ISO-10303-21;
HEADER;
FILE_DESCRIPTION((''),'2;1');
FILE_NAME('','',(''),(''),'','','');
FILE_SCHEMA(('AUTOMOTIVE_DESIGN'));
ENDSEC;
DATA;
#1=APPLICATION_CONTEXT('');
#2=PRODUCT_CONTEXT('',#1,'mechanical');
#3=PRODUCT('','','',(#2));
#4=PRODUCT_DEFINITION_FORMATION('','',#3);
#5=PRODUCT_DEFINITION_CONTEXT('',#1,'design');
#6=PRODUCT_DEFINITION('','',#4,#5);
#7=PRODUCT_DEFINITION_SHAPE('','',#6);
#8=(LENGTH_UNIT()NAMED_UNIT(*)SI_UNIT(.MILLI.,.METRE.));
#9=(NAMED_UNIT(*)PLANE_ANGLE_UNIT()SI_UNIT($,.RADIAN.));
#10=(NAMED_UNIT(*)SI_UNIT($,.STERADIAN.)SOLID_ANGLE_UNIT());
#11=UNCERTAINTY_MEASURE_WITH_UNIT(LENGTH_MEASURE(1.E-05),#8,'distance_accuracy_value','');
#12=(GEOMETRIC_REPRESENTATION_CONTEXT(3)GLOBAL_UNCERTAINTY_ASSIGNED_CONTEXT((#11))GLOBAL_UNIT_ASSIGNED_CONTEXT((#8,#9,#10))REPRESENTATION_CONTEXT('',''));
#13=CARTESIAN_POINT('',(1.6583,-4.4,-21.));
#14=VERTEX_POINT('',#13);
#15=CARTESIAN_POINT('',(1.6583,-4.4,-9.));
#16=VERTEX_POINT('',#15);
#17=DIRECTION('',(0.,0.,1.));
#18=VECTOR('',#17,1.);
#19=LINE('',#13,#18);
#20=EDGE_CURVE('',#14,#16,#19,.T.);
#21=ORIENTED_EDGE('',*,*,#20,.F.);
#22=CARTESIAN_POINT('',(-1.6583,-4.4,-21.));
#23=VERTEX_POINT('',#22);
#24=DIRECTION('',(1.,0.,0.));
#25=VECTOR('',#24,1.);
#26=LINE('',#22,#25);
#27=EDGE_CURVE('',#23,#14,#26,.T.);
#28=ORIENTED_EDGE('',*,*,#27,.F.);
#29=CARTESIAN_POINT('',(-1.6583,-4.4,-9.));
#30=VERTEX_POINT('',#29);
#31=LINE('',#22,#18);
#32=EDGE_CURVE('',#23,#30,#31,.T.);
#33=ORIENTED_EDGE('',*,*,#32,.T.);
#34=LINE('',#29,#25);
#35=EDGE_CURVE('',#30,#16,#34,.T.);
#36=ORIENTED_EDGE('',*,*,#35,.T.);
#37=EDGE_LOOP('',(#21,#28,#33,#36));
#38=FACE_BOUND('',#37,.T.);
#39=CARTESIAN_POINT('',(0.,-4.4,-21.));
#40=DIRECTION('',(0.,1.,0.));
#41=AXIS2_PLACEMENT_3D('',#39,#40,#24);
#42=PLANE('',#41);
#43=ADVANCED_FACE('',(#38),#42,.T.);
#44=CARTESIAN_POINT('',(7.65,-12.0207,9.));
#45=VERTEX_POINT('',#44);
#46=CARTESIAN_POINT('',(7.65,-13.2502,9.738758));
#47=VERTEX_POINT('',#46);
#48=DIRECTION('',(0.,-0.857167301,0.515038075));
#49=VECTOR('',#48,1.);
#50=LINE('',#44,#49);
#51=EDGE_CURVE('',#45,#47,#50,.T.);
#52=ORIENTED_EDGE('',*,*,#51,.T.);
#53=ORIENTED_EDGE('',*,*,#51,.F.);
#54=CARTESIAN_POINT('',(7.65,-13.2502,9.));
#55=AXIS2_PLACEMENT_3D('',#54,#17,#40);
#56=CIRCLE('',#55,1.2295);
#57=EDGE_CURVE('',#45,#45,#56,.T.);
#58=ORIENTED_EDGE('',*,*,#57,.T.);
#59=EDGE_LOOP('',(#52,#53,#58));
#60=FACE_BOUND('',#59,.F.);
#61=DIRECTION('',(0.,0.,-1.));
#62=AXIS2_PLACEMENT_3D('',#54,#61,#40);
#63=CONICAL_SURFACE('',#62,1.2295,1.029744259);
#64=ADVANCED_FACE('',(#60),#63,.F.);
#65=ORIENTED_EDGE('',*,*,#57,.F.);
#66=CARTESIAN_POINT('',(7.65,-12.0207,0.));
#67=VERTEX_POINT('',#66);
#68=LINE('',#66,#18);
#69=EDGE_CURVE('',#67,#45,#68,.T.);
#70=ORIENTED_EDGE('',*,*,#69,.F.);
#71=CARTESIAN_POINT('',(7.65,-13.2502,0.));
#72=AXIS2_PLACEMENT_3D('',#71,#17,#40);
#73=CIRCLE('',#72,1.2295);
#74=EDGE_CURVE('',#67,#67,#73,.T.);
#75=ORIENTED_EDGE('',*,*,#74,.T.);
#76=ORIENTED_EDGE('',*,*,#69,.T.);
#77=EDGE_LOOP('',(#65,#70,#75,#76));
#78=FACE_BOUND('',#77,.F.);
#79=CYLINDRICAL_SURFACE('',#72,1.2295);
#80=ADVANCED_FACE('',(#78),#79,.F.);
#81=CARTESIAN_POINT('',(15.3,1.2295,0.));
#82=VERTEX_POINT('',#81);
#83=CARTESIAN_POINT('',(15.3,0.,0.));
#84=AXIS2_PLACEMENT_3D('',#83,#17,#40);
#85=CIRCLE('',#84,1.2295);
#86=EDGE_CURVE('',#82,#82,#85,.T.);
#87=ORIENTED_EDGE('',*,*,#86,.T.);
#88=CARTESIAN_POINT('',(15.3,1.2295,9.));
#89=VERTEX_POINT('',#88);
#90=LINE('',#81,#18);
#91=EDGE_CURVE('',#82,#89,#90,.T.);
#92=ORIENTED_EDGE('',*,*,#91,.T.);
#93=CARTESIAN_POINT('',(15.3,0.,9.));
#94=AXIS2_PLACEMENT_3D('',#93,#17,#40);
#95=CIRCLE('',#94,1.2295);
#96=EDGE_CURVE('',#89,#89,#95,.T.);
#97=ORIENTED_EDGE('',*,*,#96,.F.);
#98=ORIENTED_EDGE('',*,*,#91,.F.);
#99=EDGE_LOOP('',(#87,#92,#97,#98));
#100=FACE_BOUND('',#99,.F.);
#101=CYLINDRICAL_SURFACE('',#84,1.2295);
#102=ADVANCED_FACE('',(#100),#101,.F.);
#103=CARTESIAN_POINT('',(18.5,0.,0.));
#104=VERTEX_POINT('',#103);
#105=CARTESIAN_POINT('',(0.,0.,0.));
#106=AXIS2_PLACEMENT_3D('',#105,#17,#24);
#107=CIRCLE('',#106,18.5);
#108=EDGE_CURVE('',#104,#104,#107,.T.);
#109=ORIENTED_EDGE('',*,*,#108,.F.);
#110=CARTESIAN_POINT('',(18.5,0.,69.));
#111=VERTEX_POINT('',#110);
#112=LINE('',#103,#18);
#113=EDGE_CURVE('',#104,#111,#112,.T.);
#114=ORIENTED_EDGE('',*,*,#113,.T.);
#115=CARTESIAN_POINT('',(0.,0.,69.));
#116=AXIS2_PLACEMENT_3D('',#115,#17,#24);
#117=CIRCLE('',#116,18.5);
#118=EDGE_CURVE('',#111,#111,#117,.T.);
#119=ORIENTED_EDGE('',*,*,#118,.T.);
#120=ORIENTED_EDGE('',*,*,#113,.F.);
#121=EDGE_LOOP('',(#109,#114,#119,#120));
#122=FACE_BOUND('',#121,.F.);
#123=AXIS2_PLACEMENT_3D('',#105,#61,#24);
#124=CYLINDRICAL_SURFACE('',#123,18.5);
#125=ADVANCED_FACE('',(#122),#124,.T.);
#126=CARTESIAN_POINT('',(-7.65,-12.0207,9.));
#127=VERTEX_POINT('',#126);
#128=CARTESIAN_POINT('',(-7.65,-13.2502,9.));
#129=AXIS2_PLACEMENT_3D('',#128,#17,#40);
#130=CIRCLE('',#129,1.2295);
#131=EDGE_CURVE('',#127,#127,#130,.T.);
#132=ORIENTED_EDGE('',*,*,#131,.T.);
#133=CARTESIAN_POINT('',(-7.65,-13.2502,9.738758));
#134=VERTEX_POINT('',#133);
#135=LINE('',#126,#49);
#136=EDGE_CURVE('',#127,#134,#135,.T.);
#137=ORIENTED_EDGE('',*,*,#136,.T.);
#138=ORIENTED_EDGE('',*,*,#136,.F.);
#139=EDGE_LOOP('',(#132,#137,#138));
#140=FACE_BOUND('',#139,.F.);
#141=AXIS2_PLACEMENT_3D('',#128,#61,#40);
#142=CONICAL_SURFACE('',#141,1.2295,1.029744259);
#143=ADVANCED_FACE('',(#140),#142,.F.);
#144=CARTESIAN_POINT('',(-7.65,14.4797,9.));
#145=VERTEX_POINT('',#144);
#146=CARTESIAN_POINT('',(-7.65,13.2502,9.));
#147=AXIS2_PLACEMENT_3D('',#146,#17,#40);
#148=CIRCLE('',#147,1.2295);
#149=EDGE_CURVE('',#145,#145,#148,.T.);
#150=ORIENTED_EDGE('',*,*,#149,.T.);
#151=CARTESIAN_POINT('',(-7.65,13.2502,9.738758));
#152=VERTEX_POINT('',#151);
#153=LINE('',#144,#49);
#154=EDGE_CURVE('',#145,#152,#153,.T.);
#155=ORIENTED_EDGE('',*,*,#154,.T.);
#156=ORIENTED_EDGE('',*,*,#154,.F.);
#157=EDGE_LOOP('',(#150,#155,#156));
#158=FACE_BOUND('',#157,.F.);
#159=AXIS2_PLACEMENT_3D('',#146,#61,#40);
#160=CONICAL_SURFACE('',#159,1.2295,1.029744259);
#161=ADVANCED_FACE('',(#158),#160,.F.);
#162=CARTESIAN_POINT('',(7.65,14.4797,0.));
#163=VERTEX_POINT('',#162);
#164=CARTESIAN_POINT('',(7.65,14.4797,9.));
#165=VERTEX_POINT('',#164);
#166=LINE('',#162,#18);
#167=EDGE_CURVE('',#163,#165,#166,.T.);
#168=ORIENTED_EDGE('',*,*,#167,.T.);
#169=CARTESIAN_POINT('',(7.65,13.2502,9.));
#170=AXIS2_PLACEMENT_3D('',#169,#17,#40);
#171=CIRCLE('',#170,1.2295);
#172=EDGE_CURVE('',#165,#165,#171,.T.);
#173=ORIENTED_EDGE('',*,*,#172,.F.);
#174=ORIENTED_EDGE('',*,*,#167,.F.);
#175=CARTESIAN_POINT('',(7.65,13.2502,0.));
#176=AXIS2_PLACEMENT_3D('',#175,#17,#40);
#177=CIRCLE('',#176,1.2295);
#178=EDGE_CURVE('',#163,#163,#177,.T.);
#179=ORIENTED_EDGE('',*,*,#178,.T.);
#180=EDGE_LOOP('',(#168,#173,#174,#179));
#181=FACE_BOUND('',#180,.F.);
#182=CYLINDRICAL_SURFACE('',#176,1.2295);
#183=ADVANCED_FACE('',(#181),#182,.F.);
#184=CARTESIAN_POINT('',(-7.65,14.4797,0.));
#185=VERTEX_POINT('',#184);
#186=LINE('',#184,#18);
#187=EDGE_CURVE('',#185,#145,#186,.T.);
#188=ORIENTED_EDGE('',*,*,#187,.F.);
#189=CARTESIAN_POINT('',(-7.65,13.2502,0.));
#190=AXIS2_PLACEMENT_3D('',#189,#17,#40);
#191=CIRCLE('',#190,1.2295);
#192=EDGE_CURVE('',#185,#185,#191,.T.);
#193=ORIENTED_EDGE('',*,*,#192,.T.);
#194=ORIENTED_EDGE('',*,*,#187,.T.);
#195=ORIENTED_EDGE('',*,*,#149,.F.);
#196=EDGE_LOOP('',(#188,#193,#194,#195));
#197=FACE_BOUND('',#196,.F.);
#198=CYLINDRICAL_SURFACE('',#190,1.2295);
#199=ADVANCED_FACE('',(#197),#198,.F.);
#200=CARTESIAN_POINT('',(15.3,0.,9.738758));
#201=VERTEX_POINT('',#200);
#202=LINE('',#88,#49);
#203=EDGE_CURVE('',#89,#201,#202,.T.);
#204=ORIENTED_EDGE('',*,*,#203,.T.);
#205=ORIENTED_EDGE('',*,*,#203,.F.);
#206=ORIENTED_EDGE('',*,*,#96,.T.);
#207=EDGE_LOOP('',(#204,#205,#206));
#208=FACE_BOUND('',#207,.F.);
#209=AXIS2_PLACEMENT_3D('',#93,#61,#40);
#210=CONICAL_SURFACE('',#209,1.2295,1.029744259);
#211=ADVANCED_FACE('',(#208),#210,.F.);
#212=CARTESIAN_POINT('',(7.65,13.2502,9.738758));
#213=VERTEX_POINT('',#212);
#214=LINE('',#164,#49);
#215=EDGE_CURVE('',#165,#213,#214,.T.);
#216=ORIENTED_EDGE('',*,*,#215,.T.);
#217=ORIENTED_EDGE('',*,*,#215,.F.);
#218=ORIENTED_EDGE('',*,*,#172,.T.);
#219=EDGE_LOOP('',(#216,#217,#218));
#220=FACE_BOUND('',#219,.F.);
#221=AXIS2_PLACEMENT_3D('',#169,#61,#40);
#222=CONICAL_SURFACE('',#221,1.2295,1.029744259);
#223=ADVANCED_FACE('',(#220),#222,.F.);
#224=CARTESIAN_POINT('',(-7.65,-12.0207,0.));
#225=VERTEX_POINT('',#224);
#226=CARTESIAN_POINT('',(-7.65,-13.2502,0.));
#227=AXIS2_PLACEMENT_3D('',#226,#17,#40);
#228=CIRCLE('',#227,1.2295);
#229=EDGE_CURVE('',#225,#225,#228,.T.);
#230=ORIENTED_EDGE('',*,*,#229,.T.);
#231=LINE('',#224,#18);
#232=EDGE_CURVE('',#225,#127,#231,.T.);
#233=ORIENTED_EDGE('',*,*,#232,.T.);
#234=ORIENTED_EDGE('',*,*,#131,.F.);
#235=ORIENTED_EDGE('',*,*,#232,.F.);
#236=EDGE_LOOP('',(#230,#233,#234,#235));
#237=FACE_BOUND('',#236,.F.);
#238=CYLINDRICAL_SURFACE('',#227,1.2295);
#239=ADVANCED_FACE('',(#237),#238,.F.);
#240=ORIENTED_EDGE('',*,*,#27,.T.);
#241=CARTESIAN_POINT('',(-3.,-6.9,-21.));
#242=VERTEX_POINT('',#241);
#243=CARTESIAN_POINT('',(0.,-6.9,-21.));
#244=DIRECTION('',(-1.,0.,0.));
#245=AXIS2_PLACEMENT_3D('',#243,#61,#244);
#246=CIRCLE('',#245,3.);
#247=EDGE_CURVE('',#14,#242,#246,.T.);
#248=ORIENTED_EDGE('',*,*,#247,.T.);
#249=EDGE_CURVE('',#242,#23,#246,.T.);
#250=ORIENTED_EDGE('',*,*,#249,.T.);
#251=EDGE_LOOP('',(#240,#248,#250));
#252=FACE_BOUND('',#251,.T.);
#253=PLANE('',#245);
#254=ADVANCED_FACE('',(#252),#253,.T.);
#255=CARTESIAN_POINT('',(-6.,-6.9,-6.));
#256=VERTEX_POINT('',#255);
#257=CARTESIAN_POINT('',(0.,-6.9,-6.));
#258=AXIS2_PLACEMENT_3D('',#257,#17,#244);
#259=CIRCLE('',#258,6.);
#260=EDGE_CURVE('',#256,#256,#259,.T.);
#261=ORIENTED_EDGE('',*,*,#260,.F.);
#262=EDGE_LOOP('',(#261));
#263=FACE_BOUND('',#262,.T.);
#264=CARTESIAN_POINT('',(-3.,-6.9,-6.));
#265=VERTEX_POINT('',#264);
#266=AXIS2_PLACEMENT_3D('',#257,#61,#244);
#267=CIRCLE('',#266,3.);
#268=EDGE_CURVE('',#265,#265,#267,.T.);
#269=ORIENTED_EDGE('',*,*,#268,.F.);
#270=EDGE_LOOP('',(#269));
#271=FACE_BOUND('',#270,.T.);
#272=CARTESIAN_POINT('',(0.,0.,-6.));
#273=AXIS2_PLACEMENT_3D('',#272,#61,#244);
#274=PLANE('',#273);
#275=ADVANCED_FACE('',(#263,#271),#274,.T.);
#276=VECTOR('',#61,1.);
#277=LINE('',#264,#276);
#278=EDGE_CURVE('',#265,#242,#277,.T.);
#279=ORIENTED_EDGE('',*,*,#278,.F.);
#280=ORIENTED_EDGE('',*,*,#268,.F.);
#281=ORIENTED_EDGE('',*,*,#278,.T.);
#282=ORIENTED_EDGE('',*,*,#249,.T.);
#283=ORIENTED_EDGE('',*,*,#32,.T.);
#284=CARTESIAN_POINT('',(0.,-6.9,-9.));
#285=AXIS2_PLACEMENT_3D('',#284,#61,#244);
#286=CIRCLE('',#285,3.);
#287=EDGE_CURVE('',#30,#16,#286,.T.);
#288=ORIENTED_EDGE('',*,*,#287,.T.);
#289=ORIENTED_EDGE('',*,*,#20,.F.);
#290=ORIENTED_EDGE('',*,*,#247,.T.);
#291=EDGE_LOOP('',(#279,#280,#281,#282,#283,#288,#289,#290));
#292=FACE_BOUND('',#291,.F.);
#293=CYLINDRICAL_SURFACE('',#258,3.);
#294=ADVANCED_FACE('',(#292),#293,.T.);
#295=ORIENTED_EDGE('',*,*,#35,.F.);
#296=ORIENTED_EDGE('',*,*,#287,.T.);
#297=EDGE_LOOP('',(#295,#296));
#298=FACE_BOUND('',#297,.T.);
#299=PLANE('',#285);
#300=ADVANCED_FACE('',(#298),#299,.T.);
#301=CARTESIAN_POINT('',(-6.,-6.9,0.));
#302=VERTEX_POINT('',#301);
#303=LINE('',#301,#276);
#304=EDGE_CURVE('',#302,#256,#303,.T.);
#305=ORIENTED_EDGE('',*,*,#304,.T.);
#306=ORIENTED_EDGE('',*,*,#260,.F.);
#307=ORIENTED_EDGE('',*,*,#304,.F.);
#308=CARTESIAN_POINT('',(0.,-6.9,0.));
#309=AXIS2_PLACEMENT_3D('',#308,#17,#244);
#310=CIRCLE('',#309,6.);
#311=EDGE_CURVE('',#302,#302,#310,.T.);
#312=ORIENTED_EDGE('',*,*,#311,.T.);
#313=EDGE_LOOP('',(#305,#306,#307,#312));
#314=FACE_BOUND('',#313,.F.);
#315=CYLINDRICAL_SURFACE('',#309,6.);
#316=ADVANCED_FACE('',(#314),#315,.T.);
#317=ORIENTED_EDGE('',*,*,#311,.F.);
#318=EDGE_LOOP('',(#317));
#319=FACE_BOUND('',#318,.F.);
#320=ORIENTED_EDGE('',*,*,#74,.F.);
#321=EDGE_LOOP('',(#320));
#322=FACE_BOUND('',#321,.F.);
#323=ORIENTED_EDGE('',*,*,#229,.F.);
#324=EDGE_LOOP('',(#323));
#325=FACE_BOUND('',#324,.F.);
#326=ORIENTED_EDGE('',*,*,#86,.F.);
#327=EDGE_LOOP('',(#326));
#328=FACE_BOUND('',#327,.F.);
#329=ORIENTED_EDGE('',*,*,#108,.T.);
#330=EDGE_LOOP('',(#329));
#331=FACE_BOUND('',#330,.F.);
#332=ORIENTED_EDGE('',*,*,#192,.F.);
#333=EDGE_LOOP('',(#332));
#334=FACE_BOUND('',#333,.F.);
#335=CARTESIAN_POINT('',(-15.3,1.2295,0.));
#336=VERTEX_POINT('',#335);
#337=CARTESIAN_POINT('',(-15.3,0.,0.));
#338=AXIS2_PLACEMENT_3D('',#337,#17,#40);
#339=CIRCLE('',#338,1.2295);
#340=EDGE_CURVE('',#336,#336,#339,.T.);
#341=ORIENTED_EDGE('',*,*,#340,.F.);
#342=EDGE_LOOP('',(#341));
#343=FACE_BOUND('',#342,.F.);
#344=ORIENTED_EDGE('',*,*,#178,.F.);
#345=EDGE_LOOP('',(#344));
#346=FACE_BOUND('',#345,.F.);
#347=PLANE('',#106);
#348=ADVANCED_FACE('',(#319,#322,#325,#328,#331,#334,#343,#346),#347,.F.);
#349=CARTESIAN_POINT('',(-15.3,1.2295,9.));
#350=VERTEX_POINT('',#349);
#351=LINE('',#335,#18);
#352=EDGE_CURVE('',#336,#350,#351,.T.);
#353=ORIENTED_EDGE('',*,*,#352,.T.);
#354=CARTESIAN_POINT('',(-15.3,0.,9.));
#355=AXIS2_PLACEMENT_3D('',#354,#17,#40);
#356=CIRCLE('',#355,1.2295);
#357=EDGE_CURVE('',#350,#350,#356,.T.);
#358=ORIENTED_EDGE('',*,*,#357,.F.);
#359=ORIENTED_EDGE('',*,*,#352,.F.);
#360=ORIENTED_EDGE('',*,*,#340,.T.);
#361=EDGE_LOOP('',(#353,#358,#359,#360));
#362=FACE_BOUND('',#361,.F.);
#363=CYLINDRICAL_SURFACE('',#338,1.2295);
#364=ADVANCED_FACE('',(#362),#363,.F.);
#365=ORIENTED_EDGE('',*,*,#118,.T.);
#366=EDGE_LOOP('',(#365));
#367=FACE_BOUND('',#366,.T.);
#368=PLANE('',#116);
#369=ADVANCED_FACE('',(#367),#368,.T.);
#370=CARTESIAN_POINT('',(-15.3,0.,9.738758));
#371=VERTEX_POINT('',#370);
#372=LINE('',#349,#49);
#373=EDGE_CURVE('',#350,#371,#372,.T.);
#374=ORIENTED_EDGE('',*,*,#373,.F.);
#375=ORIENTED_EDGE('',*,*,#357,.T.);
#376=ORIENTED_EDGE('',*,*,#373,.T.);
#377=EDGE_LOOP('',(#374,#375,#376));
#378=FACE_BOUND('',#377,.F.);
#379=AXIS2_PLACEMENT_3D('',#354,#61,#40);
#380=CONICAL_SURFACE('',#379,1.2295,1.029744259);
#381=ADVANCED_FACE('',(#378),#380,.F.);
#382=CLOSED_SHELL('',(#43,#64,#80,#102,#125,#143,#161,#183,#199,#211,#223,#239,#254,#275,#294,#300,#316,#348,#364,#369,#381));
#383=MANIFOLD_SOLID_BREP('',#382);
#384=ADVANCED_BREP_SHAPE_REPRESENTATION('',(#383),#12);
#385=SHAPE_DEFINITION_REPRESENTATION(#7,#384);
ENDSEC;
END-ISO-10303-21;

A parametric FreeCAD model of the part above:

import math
import FreeCAD as App
import Part
import Sketcher
from FreeCAD import Vector
Q = App.Units.Quantity

doc = App.newDocument("Part")
body = doc.addObject("PartDesign::Body", "Body")

# Sketch on XY plane
sketch1 = body.newObject("Sketcher::SketchObject", "Sketch")
sketch1.AttachmentSupport = (doc.getObject("XY_Plane"), [""])
sketch1.MapMode = "FlatFace"
sketch1.addGeometry(Part.Circle(Vector(0, 0, 0), Vector(0, 0, 1), 18), False)
sketch1.addConstraint([
    Sketcher.Constraint("Coincident", 0, 3, -1, 1),
    Sketcher.Constraint("Diameter", 0, Q("37 mm")),
])
pad1 = body.newObject("PartDesign::Pad", "Pad")
pad1.Profile = sketch1
pad1.Length = 69

# Sketch on XY plane
sketch2 = body.newObject("Sketcher::SketchObject", "Sketch001")
sketch2.AttachmentSupport = (doc.getObject("XY_Plane"), [""])
sketch2.MapMode = "FlatFace"
sketch2.addGeometry([
    Part.Circle(Vector(7.7, 13.3, 0), Vector(0, 0, 1), 1.2),  # 0
    Part.Circle(Vector(-7.7, 13.3, 0), Vector(0, 0, 1), 1.2),  # 1
    Part.Circle(Vector(15.3, 0, 0), Vector(0, 0, 1), 1.2),  # 2
    Part.Circle(Vector(7.7, -13.3, 0), Vector(0, 0, 1), 1.2),  # 3
    Part.Circle(Vector(-7.7, -13.3, 0), Vector(0, 0, 1), 1.2),  # 4
    Part.Circle(Vector(-15.3, 0, 0), Vector(0, 0, 1), 1.2),  # 5
], False)
sketch2.addConstraint([
    Sketcher.Constraint("Equal", 0, 1),
    Sketcher.Constraint("Equal", 1, 2),
    Sketcher.Constraint("Equal", 2, 3),
    Sketcher.Constraint("Equal", 3, 4),
    Sketcher.Constraint("Equal", 4, 5),
    Sketcher.Constraint("Symmetric", 1, 3, 3, 3, -1, 1),
    Sketcher.Constraint("Symmetric", 0, 3, 4, 3, -1, 1),
    Sketcher.Constraint("Symmetric", 2, 3, 5, 3, -1, 1),
    Sketcher.Constraint("Symmetric", 0, 3, 1, 3, -2),
    Sketcher.Constraint("PointOnObject", 2, 3, -1),
    Sketcher.Constraint("Diameter", 0, Q("2.459 mm")),
    Sketcher.Constraint("DistanceX", -1, 1, 2, 3, Q("15.3 mm")),
    Sketcher.Constraint("DistanceX", 1, 3, 0, 3, Q("15.3 mm")),
    Sketcher.Constraint("DistanceY", -1, 1, 0, 3, Q("13.2502 mm")),
])
doc.recompute()
hole = body.newObject("PartDesign::Hole", "Hole")
hole.Profile = sketch2
hole.ThreadType = "None"
hole.Diameter = 2.459
hole.DepthType = "Dimension"
hole.Depth = 9
hole.DrillPoint = "Angled"
hole.DrillPointAngle = 118
hole.Reversed = True

# Sketch on XY plane
sketch3 = body.newObject("Sketcher::SketchObject", "Sketch002")
sketch3.AttachmentSupport = (doc.getObject("XY_Plane"), [""])
sketch3.MapMode = "FlatFace"
sketch3.addGeometry(Part.Circle(Vector(0, -7, 0), Vector(0, 0, 1), 6), False)
sketch3.addConstraint([
    Sketcher.Constraint("PointOnObject", 0, 3, -2),
    Sketcher.Constraint("Diameter", 0, Q("12 mm")),
    Sketcher.Constraint("DistanceY", 0, 3, -1, 1, Q("6.9 mm")),
])
pad2 = body.newObject("PartDesign::Pad", "Pad001")
pad2.Profile = sketch3
pad2.Length = 6
pad2.Reversed = True

# Sketch on XY plane
sketch4 = body.newObject("Sketcher::SketchObject", "Sketch003")
sketch4.AttachmentSupport = (doc.getObject("XY_Plane"), [""])
sketch4.MapMode = "FlatFace"
sketch4.AttachmentOffset = App.Placement(Vector(0, 0, -6), App.Rotation())
sketch4.addGeometry(Part.Circle(Vector(0, -6.9, 0), Vector(0, 0, 1), 3), False)
sketch4.addConstraint([
    Sketcher.Constraint("PointOnObject", 0, 3, -2),
    Sketcher.Constraint("Diameter", 0, Q("6 mm")),
    Sketcher.Constraint("DistanceY", 0, 3, -1, 1, Q("6.9 mm")),
])
pad3 = body.newObject("PartDesign::Pad", "Pad002")
pad3.Profile = sketch4
pad3.Length = 15
pad3.Reversed = True

# Sketch on XY plane
sketch5 = body.newObject("Sketcher::SketchObject", "Sketch004")
sketch5.AttachmentSupport = (doc.getObject("XY_Plane"), [""])
sketch5.MapMode = "FlatFace"
sketch5.AttachmentOffset = App.Placement(Vector(0, 0, -21), App.Rotation())
sketch5.addGeometry([
    Part.LineSegment(Vector(1.7, -4.4, 0), Vector(-1.7, -4.4, 0)),
    Part.ArcOfCircle(Part.Circle(Vector(0, -6.9, 0), Vector(0, 0, 1), 3), math.radians(56), math.radians(124)),
], False)
sketch5.addConstraint([
    Sketcher.Constraint("Coincident", 0, 1, 1, 1),
    Sketcher.Constraint("Coincident", 1, 2, 0, 2),
    Sketcher.Constraint("Horizontal", 0),
    Sketcher.Constraint("PointOnObject", 1, 3, -2),
    Sketcher.Constraint("Radius", 1, Q("3 mm")),
    Sketcher.Constraint("DistanceY", 1, 3, -1, 1, Q("6.9 mm")),
    Sketcher.Constraint("DistanceY", 0, 1, -1, 1, Q("4.4 mm")),
])
pocket1 = body.newObject("PartDesign::Pocket", "Pocket")
pocket1.Profile = sketch5
pocket1.Length = 12
pocket1.Reversed = True

doc.recompute()
